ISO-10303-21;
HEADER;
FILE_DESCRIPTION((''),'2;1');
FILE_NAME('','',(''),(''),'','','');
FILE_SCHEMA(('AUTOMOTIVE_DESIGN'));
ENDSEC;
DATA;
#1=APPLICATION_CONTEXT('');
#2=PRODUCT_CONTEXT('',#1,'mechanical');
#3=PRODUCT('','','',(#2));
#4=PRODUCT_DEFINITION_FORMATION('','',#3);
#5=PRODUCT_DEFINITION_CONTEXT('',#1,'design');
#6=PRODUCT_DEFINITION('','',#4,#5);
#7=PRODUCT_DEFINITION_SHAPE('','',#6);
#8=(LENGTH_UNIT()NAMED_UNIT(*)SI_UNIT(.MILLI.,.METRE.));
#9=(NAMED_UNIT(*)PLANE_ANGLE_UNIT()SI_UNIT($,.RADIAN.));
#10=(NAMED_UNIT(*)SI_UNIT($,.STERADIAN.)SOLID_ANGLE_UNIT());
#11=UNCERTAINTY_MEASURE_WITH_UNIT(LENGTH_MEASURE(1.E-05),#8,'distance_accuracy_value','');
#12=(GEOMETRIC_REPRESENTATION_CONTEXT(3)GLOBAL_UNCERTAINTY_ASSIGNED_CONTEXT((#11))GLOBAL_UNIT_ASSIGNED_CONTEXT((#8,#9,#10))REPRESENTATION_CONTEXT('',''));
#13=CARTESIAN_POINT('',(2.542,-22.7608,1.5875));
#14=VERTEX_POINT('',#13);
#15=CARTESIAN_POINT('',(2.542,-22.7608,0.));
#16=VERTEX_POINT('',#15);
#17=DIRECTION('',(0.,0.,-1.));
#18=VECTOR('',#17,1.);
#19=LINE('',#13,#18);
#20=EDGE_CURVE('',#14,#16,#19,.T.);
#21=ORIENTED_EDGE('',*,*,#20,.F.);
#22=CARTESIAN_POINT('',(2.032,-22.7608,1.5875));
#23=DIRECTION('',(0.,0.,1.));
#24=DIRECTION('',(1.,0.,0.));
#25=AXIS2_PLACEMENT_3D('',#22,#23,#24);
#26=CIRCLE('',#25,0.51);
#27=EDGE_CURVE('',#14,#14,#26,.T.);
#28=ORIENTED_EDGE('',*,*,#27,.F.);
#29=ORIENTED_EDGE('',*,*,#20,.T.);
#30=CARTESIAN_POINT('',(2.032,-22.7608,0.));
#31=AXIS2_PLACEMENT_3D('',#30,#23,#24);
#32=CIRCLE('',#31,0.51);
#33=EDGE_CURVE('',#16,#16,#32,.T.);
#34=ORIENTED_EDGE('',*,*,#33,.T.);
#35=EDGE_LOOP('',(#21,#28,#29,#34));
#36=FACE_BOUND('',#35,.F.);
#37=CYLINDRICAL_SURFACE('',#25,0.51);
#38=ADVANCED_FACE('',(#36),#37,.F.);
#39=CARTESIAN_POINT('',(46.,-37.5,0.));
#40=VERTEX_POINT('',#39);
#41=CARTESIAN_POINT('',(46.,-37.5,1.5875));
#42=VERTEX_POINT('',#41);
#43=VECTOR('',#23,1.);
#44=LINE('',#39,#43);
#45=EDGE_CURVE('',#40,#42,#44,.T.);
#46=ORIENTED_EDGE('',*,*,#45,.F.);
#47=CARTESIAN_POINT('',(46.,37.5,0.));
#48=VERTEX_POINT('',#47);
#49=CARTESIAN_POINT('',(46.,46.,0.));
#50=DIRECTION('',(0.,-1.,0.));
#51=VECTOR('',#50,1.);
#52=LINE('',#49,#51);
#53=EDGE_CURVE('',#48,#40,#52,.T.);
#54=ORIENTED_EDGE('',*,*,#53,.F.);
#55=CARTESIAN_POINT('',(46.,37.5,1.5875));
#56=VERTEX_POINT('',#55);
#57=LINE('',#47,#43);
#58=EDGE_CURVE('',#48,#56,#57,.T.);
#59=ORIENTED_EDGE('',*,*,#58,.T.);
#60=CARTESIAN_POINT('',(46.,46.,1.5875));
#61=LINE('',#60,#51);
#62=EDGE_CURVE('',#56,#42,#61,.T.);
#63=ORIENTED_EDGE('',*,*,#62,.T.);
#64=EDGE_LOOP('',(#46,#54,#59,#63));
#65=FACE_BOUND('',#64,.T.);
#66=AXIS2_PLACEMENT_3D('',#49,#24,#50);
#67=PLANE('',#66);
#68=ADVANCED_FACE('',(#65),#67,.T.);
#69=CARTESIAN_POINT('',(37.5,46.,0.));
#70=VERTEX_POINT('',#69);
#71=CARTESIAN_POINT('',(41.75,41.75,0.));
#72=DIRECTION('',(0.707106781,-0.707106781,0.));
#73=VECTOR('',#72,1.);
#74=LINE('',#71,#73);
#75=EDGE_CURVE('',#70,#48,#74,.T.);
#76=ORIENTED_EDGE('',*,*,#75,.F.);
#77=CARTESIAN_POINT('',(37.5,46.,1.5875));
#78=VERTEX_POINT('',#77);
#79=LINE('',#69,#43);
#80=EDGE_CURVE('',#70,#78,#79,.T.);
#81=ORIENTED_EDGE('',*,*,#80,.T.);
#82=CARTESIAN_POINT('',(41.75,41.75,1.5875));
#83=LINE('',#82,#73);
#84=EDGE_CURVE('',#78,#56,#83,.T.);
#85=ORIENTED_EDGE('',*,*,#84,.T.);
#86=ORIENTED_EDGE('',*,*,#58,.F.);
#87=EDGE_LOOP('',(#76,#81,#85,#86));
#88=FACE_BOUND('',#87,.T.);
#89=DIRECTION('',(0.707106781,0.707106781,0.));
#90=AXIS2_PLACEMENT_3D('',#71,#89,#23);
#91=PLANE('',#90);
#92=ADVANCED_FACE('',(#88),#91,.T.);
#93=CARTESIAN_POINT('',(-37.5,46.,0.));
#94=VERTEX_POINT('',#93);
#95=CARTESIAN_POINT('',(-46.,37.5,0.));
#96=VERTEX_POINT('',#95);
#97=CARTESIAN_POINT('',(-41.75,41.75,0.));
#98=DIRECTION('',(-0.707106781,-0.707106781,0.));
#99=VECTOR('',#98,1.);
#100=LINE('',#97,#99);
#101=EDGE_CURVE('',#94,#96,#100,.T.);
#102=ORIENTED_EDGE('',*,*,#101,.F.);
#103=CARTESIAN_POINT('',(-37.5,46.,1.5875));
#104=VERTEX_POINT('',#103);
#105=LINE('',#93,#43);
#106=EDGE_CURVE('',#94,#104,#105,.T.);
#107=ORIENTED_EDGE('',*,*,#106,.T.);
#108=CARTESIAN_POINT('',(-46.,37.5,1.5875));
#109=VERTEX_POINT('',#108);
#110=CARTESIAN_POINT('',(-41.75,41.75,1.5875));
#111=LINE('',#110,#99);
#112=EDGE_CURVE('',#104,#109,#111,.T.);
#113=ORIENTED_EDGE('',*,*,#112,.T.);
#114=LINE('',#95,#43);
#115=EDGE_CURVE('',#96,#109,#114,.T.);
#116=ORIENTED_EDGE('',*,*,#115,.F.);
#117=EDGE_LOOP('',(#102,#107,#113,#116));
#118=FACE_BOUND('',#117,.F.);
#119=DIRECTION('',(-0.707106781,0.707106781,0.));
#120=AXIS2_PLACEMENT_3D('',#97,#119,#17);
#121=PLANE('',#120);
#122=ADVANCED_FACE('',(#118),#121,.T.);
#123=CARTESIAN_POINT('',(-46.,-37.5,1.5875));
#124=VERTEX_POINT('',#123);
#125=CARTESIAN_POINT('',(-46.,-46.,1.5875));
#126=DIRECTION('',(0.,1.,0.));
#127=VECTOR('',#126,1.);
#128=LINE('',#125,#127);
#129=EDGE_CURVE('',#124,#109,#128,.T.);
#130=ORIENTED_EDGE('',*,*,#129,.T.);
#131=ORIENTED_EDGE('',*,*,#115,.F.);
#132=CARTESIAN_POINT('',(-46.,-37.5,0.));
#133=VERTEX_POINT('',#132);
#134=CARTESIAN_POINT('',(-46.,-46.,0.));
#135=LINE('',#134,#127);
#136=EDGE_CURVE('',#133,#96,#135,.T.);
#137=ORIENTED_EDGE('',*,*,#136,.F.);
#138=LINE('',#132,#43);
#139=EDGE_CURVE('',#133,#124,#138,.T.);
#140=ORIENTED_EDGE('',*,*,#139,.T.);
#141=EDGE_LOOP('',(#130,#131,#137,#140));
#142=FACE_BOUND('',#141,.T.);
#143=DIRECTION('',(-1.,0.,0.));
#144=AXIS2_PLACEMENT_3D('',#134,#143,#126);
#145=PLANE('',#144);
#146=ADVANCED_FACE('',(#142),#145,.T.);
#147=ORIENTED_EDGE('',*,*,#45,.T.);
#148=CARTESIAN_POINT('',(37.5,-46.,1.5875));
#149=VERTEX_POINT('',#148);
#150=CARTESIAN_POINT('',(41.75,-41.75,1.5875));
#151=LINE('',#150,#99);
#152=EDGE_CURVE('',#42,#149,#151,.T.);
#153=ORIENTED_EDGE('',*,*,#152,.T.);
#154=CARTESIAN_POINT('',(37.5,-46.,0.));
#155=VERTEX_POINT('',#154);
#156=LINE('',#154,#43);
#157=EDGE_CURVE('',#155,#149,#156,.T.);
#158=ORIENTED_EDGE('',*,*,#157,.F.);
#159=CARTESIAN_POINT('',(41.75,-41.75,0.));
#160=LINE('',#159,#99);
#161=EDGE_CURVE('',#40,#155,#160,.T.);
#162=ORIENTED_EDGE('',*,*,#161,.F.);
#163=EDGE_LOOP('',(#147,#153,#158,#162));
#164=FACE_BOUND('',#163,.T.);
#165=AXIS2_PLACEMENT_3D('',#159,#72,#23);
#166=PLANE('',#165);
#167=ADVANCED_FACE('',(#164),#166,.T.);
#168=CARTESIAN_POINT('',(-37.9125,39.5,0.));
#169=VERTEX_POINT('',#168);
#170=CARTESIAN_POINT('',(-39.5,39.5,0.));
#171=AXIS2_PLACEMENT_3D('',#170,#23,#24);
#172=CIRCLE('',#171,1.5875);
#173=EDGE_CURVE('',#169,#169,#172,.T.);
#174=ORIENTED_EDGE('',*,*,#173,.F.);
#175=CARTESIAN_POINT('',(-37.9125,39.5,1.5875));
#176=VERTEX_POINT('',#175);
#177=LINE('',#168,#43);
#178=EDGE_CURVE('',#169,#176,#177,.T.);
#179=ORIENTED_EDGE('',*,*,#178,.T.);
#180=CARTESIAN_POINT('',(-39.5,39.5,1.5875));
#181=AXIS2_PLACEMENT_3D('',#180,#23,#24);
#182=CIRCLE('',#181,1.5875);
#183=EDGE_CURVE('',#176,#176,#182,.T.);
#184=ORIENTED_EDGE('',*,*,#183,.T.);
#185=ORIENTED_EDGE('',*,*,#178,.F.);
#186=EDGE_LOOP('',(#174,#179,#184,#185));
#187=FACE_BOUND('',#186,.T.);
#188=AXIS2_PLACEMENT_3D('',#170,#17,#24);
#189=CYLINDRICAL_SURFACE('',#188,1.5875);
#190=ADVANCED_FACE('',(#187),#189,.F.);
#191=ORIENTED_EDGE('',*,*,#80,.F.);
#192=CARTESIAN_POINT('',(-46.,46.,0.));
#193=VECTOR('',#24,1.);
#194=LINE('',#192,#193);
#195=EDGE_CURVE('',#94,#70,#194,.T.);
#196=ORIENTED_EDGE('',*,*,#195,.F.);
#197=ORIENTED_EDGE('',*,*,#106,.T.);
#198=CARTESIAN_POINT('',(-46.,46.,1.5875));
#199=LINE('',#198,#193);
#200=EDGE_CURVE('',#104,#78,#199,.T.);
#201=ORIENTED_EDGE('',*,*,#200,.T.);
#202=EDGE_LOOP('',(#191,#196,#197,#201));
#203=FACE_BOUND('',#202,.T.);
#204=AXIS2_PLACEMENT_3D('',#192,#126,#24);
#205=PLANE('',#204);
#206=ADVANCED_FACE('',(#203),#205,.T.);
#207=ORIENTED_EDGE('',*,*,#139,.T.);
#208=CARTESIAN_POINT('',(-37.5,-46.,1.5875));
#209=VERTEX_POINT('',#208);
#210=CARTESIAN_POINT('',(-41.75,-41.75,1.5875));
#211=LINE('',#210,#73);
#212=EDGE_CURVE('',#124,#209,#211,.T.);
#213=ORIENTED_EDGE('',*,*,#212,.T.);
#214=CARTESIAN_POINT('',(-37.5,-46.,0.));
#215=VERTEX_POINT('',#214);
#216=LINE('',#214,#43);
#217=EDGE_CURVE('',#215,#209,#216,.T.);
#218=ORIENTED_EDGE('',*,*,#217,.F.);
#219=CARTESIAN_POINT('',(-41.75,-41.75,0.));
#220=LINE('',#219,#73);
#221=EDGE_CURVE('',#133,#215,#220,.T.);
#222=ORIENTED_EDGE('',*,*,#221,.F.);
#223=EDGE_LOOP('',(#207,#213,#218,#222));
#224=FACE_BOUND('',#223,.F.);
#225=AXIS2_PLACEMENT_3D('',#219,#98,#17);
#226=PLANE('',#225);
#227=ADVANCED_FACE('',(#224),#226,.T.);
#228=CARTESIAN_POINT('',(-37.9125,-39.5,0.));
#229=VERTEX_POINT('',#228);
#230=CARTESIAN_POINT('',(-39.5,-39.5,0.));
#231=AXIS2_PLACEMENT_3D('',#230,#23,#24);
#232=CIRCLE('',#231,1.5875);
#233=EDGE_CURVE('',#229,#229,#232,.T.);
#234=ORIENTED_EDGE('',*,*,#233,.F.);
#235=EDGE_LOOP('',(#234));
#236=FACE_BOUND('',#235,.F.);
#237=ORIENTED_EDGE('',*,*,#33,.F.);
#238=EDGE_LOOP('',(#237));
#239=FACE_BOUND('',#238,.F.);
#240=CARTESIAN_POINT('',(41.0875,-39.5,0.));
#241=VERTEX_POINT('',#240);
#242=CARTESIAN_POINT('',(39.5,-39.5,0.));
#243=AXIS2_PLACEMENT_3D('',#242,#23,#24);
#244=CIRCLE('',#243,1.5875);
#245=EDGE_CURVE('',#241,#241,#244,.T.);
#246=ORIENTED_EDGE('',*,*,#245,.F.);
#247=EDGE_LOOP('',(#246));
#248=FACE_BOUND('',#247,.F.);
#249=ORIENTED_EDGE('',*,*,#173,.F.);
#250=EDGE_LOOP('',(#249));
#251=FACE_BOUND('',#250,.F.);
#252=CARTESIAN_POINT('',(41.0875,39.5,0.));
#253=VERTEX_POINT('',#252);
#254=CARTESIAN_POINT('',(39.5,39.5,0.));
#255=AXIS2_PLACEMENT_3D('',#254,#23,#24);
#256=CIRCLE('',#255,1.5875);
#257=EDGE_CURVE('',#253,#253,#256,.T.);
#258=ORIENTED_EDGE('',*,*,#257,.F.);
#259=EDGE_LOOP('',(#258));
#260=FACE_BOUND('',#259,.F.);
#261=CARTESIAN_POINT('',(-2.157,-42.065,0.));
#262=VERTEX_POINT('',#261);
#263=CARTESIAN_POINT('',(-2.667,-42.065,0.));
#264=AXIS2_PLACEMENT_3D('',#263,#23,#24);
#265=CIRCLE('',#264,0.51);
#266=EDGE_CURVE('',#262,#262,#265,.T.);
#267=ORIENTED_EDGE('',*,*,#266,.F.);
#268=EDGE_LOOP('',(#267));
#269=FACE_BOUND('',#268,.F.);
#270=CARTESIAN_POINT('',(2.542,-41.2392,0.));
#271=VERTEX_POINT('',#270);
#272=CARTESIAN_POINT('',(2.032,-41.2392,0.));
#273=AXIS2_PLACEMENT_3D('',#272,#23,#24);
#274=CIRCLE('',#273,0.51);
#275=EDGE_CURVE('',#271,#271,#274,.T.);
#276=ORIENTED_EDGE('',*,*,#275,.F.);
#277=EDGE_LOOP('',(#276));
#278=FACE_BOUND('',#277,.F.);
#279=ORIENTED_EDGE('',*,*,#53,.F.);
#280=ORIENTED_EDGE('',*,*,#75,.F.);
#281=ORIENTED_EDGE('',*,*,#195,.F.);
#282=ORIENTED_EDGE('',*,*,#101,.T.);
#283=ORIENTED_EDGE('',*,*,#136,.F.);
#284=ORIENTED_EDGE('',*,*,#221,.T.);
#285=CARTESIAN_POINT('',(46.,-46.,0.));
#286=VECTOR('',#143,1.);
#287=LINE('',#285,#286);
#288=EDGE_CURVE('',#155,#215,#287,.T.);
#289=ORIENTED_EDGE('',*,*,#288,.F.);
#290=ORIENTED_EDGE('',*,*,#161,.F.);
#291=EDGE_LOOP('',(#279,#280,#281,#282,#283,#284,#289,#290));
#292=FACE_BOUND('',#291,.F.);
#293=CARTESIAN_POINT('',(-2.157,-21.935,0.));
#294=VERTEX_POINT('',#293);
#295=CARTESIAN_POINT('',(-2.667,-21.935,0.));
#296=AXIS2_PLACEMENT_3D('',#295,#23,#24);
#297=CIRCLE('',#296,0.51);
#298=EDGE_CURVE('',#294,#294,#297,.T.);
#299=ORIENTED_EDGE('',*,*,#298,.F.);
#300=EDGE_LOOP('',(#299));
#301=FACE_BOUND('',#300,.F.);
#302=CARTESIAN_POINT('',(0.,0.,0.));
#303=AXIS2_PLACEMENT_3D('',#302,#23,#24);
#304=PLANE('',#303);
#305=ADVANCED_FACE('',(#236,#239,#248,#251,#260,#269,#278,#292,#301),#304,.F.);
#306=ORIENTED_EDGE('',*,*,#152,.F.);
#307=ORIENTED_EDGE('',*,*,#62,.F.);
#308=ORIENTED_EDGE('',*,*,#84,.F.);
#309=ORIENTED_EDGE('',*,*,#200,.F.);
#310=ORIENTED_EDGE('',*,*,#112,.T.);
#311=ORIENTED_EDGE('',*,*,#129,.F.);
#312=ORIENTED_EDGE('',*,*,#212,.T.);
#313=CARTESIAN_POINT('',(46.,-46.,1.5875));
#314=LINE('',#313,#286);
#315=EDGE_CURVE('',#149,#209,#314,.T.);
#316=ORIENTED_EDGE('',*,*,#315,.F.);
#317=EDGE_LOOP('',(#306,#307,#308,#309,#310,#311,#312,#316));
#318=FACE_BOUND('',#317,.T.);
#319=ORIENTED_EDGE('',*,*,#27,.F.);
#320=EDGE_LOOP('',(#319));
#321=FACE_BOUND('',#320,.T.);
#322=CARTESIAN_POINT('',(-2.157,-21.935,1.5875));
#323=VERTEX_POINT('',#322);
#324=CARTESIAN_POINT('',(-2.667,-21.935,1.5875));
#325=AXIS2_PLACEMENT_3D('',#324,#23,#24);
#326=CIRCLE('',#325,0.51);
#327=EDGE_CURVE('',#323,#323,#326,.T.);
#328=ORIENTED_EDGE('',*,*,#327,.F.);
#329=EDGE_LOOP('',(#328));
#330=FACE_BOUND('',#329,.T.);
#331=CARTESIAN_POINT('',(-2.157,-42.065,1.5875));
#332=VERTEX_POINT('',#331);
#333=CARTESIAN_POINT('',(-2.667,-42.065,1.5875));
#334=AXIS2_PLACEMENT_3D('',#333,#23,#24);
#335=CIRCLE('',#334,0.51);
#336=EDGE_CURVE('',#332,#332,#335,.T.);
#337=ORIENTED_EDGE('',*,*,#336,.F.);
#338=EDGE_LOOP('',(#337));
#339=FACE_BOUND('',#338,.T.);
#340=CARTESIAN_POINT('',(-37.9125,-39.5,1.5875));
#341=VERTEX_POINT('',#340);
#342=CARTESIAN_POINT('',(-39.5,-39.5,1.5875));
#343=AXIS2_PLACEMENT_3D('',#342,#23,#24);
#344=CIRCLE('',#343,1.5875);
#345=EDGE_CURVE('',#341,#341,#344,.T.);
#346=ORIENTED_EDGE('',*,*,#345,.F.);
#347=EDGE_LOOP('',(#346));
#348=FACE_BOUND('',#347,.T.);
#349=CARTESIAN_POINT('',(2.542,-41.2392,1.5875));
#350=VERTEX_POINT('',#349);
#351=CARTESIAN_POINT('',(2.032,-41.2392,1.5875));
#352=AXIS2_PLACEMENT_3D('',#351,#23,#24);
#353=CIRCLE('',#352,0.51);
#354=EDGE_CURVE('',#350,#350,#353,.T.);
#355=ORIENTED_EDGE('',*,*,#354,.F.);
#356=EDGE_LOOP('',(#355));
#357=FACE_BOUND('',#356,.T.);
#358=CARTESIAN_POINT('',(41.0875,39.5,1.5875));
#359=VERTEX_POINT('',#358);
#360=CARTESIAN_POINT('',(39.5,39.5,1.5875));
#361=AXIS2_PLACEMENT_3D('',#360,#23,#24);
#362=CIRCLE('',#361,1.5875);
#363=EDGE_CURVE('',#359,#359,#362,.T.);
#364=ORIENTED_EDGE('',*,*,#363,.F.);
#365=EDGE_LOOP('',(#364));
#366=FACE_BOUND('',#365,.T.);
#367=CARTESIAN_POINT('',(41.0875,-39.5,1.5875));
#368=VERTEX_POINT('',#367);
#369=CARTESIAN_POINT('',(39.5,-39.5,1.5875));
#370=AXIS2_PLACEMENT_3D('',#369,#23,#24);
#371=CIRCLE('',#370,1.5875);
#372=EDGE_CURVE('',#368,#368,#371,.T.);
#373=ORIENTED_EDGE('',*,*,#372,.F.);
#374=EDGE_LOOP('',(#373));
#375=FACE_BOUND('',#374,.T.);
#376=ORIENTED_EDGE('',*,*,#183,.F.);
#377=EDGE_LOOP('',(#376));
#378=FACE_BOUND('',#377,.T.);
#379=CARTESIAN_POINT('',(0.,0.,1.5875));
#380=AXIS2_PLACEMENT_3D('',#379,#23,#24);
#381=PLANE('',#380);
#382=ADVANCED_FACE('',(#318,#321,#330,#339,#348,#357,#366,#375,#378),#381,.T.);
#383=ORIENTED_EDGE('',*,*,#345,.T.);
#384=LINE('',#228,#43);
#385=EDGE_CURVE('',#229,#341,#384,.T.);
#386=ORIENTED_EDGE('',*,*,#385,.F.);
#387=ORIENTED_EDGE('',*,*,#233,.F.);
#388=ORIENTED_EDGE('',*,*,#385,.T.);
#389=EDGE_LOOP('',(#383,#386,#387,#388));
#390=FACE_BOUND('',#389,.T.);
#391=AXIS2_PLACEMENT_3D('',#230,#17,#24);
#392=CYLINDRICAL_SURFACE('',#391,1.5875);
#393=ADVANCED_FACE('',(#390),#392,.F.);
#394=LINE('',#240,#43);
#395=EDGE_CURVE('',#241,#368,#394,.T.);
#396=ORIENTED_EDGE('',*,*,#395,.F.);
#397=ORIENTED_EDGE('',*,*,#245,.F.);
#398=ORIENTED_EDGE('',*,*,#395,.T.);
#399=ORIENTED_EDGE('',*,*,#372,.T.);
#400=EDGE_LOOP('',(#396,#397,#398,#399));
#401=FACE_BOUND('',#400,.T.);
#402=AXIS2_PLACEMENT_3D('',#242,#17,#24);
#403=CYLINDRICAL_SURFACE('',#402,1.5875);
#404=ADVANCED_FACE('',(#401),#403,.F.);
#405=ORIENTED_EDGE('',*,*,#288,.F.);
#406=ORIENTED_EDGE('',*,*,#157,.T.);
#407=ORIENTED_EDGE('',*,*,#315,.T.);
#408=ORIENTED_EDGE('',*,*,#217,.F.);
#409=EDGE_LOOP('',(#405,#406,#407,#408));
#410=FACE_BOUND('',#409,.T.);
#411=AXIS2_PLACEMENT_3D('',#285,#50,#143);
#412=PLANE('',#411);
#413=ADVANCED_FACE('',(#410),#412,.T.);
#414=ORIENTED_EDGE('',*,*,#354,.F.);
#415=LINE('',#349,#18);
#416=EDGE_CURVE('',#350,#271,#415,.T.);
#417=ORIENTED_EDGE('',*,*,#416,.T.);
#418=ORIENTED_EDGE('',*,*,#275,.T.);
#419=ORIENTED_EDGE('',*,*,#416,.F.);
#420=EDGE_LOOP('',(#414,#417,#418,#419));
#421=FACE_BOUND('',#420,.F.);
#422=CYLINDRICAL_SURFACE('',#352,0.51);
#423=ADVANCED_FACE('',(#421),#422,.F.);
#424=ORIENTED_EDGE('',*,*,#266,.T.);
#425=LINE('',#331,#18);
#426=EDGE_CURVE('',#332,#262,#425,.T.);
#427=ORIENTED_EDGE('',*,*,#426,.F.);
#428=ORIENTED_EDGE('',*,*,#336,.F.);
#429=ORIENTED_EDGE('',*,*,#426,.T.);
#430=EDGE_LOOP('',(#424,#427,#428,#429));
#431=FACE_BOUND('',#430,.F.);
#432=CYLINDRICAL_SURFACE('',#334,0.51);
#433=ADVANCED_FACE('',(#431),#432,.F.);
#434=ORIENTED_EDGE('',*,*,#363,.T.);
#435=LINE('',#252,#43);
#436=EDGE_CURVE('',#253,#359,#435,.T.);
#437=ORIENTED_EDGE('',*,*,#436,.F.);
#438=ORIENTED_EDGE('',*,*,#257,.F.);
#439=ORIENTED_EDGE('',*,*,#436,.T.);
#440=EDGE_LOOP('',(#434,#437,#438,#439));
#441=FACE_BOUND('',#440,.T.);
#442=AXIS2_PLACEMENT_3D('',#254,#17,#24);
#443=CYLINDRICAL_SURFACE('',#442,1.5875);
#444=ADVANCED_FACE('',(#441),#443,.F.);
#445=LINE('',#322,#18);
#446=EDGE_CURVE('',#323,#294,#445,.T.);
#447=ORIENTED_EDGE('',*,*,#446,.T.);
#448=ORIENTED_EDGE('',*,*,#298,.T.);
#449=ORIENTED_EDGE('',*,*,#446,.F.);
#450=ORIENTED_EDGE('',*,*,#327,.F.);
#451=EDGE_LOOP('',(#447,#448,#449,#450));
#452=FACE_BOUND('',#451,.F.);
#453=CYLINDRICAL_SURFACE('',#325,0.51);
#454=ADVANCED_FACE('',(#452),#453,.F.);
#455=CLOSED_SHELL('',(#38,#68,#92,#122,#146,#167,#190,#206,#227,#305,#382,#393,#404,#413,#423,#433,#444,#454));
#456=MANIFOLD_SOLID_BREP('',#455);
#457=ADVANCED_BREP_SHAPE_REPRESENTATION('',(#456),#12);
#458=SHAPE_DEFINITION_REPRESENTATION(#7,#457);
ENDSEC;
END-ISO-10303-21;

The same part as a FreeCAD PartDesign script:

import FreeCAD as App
import Part
import Sketcher
from FreeCAD import Vector
Q = App.Units.Quantity


def edges_at(feature, points):
    """Names of the edges that pass closest to the given points."""
    edges = feature.Shape.Edges
    near = lambda p: min(range(len(edges)), key=lambda i: edges[i].distToShape(Part.Vertex(*p))[0])
    return sorted({f"Edge{near(p) + 1}" for p in points})

doc = App.newDocument("Part")
body = doc.addObject("PartDesign::Body", "Body")

sketch1 = body.newObject("Sketcher::SketchObject", "Sketch")
sketch1.AttachmentSupport = (doc.getObject("XY_Plane"), [""])
sketch1.MapMode = "FlatFace"
sketch1.addGeometry([
    Part.LineSegment(Vector(46, 46, 0), Vector(-46, 46, 0)),
    Part.LineSegment(Vector(-46, 46, 0), Vector(-46, -46, 0)),
    Part.LineSegment(Vector(-46, -46, 0), Vector(46, -46, 0)),
    Part.LineSegment(Vector(46, -46, 0), Vector(46, 46, 0)),
    Part.Circle(Vector(-39.5, -39.5, 0), Vector(0, 0, 1), 1.5875),
    Part.Circle(Vector(39.5, -39.5, 0), Vector(0, 0, 1), 1.5875),
    Part.Circle(Vector(-39.5, 39.5, 0), Vector(0, 0, 1), 1.5875),
    Part.Circle(Vector(39.5, 39.5, 0), Vector(0, 0, 1), 1.5875),
], False)
sketch1.addConstraint([
    Sketcher.Constraint("Coincident", 0, 2, 1, 1),
    Sketcher.Constraint("Coincident", 1, 2, 2, 1),
    Sketcher.Constraint("Coincident", 2, 2, 3, 1),
    Sketcher.Constraint("Coincident", 3, 2, 0, 1),
    Sketcher.Constraint("Horizontal", 0),
    Sketcher.Constraint("Vertical", 1),
    Sketcher.Constraint("Horizontal", 2),
    Sketcher.Constraint("Vertical", 3),
    Sketcher.Constraint("Equal", 4, 5),
    Sketcher.Constraint("Equal", 5, 6),
    Sketcher.Constraint("Equal", 6, 7),
    Sketcher.Constraint("Symmetric", 5, 3, 6, 3, -1, 1),
    Sketcher.Constraint("Symmetric", 4, 3, 7, 3, -1, 1),
    Sketcher.Constraint("Symmetric", 0, 2, 2, 2, -1, 1),
    Sketcher.Constraint("Symmetric", 4, 3, 5, 3, -2),
    Sketcher.Constraint("Equal", 2, 1),
    Sketcher.Constraint("DistanceX", 0, 2, 0, 1, Q("92 mm")),
    Sketcher.Constraint("Diameter", 4, Q("3.175 mm")),
    Sketcher.Constraint("DistanceX", 4, 3, 5, 3, Q("79 mm")),
    Sketcher.Constraint("DistanceY", 4, 3, 6, 3, Q("79 mm")),
])
pad1 = body.newObject("PartDesign::Pad", "Pad")
pad1.Profile = sketch1
pad1.Length = 1.5875

sketch2 = body.newObject("Sketcher::SketchObject", "Sketch001")
sketch2.AttachmentSupport = (doc.getObject("XY_Plane"), [""])
sketch2.MapMode = "FlatFace"
sketch2.AttachmentOffset = App.Placement(Vector(0, 0, 1.5875), App.Rotation())
sketch2.addGeometry([
    Part.Circle(Vector(-2.667, -21.935, 0), Vector(0, 0, 1), 0.51),
    Part.Circle(Vector(-2.667, -42.065, 0), Vector(0, 0, 1), 0.51),
], False)
sketch2.addConstraint([
    Sketcher.Constraint("Equal", 0, 1),
    Sketcher.Constraint("Vertical", 0, 3, 1, 3),
    Sketcher.Constraint("Diameter", 0, Q("1.02 mm")),
    Sketcher.Constraint("DistanceY", 1, 3, 0, 3, Q("20.13 mm")),
    Sketcher.Constraint("DistanceX", 0, 3, -1, 1, Q("2.667 mm")),
    Sketcher.Constraint("DistanceY", 0, 3, -1, 1, Q("21.935 mm")),
])
pocket1 = body.newObject("PartDesign::Pocket", "Pocket")
pocket1.Profile = sketch2
pocket1.Type = "ThroughAll"

sketch3 = body.newObject("Sketcher::SketchObject", "Sketch002")
sketch3.AttachmentSupport = (doc.getObject("XY_Plane"), [""])
sketch3.MapMode = "FlatFace"
sketch3.AttachmentOffset = App.Placement(Vector(0, 0, 1.5875), App.Rotation())
sketch3.addGeometry([
    Part.Circle(Vector(2.032, -22.7608, 0), Vector(0, 0, 1), 0.51),
    Part.Circle(Vector(2.032, -41.2392, 0), Vector(0, 0, 1), 0.51),
], False)
sketch3.addConstraint([
    Sketcher.Constraint("Equal", 0, 1),
    Sketcher.Constraint("Vertical", 0, 3, 1, 3),
    Sketcher.Constraint("Diameter", 0, Q("1.02 mm")),
    Sketcher.Constraint("DistanceX", -1, 1, 0, 3, Q("2.032 mm")),
    Sketcher.Constraint("DistanceY", 1, 3, 0, 3, Q("18.4784 mm")),
    Sketcher.Constraint("DistanceY", 0, 3, -1, 1, Q("22.7608 mm")),
])
pocket2 = body.newObject("PartDesign::Pocket", "Pocket001")
pocket2.Profile = sketch3
pocket2.Type = "ThroughAll"
doc.recompute()

chamfer = body.newObject("PartDesign::Chamfer", "Chamfer")
chamfer.Base = (pocket2, edges_at(pocket2, [
    (-46, 46, 0.794),
    (46, 46, 0.794),
    (46, -46, 0.794),
    (-46, -46, 0.794),
]))
chamfer.Size = 8.5

doc.recompute()
